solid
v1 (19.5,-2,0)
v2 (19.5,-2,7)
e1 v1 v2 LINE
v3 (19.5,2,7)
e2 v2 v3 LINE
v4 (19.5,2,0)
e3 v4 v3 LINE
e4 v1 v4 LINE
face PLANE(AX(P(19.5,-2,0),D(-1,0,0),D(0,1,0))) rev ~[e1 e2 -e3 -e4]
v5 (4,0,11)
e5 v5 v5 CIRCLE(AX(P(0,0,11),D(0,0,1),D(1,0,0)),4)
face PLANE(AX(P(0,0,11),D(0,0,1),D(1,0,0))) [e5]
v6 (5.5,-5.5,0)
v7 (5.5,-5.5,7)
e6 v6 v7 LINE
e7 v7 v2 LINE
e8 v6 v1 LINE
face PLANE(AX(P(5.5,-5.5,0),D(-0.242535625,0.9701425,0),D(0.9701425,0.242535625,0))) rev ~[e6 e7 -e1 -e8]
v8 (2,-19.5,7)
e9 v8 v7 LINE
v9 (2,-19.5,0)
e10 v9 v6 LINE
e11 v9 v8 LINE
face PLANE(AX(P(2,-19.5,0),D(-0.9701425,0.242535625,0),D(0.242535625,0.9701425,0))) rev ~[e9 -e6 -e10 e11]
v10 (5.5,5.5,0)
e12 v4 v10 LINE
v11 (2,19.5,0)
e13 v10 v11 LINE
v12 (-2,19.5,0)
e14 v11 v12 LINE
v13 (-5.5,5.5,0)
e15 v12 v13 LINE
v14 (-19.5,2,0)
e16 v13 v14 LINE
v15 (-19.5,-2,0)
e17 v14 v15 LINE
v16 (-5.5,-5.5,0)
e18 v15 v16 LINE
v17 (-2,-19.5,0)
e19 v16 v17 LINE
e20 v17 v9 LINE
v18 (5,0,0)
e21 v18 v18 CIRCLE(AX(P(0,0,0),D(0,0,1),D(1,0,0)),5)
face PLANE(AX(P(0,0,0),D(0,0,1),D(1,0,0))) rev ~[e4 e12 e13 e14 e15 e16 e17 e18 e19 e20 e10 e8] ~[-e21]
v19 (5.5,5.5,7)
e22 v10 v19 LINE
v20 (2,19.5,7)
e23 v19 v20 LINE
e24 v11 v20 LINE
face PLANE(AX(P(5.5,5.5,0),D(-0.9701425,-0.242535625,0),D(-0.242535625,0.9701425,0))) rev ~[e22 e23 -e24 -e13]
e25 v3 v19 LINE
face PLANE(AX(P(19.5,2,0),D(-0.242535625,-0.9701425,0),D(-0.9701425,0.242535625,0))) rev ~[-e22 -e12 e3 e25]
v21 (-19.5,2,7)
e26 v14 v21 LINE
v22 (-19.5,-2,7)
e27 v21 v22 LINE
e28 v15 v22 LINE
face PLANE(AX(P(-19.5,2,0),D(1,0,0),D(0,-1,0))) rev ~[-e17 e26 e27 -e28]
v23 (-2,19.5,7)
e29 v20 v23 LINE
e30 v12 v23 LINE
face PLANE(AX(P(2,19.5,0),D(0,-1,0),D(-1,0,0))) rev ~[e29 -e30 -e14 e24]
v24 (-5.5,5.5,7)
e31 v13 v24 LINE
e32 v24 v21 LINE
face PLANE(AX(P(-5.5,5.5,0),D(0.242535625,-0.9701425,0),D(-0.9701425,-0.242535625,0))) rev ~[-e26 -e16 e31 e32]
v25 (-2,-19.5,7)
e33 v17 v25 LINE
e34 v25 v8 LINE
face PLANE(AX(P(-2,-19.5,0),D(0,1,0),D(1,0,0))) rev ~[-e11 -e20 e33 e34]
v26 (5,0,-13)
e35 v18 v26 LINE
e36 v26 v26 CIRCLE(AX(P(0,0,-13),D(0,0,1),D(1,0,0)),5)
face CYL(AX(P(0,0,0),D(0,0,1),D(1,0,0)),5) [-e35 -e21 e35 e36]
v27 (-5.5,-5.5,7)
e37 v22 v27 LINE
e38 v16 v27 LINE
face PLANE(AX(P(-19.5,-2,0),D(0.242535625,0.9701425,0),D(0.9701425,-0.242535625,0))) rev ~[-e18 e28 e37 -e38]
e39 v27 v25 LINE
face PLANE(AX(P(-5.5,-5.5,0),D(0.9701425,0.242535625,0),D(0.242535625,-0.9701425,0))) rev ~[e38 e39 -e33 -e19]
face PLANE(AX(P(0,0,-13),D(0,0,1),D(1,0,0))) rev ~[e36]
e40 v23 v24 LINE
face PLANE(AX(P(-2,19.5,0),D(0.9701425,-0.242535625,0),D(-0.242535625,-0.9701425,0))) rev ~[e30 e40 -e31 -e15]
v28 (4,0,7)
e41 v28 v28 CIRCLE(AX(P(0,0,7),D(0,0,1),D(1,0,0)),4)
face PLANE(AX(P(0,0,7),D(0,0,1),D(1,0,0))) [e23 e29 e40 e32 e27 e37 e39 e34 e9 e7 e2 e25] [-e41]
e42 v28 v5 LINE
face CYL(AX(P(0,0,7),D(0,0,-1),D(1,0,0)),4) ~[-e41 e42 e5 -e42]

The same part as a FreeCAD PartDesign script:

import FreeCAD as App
import Part
import Sketcher

doc = App.newDocument("Part")
body = doc.addObject("PartDesign::Body", "Body")

sketch1 = doc.addObject("Sketcher::SketchObject", "Sketch")
body.addObject(sketch1)
sketch1.AttachmentSupport = (doc.XY_Plane, [""])
sketch1.MapMode = "FlatFace"
sketch1.addGeometry(Part.LineSegment(App.Vector(-5.5, -5.5, 0), App.Vector(-2, -19.5, 0)), False)
sketch1.addGeometry(Part.LineSegment(App.Vector(-2, -19.5, 0), App.Vector(2, -19.5, 0)), False)
sketch1.addGeometry(Part.LineSegment(App.Vector(2, -19.5, 0), App.Vector(5.5, -5.5, 0)), False)
sketch1.addGeometry(Part.LineSegment(App.Vector(5.5, -5.5, 0), App.Vector(19.5, -2, 0)), False)
sketch1.addGeometry(Part.LineSegment(App.Vector(19.5, -2, 0), App.Vector(19.5, 2, 0)), False)
sketch1.addGeometry(Part.LineSegment(App.Vector(19.5, 2, 0), App.Vector(5.5, 5.5, 0)), False)
sketch1.addGeometry(Part.LineSegment(App.Vector(5.5, 5.5, 0), App.Vector(2, 19.5, 0)), False)
sketch1.addGeometry(Part.LineSegment(App.Vector(2, 19.5, 0), App.Vector(-2, 19.5, 0)), False)
sketch1.addGeometry(Part.LineSegment(App.Vector(-2, 19.5, 0), App.Vector(-5.5, 5.5, 0)), False)
sketch1.addGeometry(Part.LineSegment(App.Vector(-5.5, 5.5, 0), App.Vector(-19.5, 2, 0)), False)
sketch1.addGeometry(Part.LineSegment(App.Vector(-19.5, 2, 0), App.Vector(-19.5, -2, 0)), False)
sketch1.addGeometry(Part.LineSegment(App.Vector(-19.5, -2, 0), App.Vector(-5.5, -5.5, 0)), False)
sketch1.addConstraint(Sketcher.Constraint("Coincident", 0, 2, 1, 1))
sketch1.addConstraint(Sketcher.Constraint("Coincident", 1, 2, 2, 1))
sketch1.addConstraint(Sketcher.Constraint("Coincident", 2, 2, 3, 1))
sketch1.addConstraint(Sketcher.Constraint("Coincident", 3, 2, 4, 1))
sketch1.addConstraint(Sketcher.Constraint("Coincident", 4, 2, 5, 1))
sketch1.addConstraint(Sketcher.Constraint("Coincident", 5, 2, 6, 1))
sketch1.addConstraint(Sketcher.Constraint("Coincident", 6, 2, 7, 1))
sketch1.addConstraint(Sketcher.Constraint("Coincident", 7, 2, 8, 1))
sketch1.addConstraint(Sketcher.Constraint("Coincident", 8, 2, 9, 1))
sketch1.addConstraint(Sketcher.Constraint("Coincident", 9, 2, 10, 1))
sketch1.addConstraint(Sketcher.Constraint("Coincident", 10, 2, 11, 1))
sketch1.addConstraint(Sketcher.Constraint("Coincident", 11, 2, 0, 1))
sketch1.addConstraint(Sketcher.Constraint("Horizontal", 1))
sketch1.addConstraint(Sketcher.Constraint("Vertical", 4))
sketch1.addConstraint(Sketcher.Constraint("Horizontal", 7))
sketch1.addConstraint(Sketcher.Constraint("Vertical", 10))
sketch1.addConstraint(Sketcher.Constraint("Symmetric", 0, 2, 6, 2, -1, 1))
sketch1.addConstraint(Sketcher.Constraint("Symmetric", 2, 2, 8, 2, -1, 1))
sketch1.addConstraint(Sketcher.Constraint("Symmetric", 3, 2, 9, 2, -1, 1))
sketch1.addConstraint(Sketcher.Constraint("Symmetric", 5, 2, 11, 2, -1, 1))
sketch1.addConstraint(Sketcher.Constraint("Symmetric", 5, 2, 8, 2, -2))
sketch1.addConstraint(Sketcher.Constraint("Perpendicular", 0, 3))
sketch1.addConstraint(Sketcher.Constraint("Perpendicular", 2, 5))
sketch1.addConstraint(Sketcher.Constraint("Perpendicular", 5, 8))
sketch1.addConstraint(Sketcher.Constraint("Perpendicular", 8, 11))
sketch1.addConstraint(Sketcher.Constraint("Horizontal", 4, 2, 9, 2))
sketch1.addConstraint(Sketcher.Constraint("Equal", 7, 4))
sketch1.addConstraint(Sketcher.Constraint("Equal", 2, 3))
sketch1.addConstraint(Sketcher.Constraint("DistanceX", 1, 1, 1, 2, 4.0))
sketch1.addConstraint(Sketcher.Constraint("DistanceY", 1, 2, 2, 2, 14.0))
sketch1.addConstraint(Sketcher.Constraint("DistanceY", 2, 2, 5, 2, 11.0))
pad1 = doc.addObject("PartDesign::Pad", "Pad")
body.addObject(pad1)
pad1.Profile = sketch1
pad1.Length = 7

sketch2 = doc.addObject("Sketcher::SketchObject", "Sketch001")
body.addObject(sketch2)
sketch2.AttachmentSupport = (doc.XY_Plane, [""])
sketch2.MapMode = "FlatFace"
sketch2.addGeometry(Part.Circle(App.Vector(0, 0, 0), App.Vector(0, 0, 1), 5), False)
sketch2.addConstraint(Sketcher.Constraint("Coincident", 0, 3, -1, 1))
sketch2.addConstraint(Sketcher.Constraint("Diameter", 0, 10.0))
pad2 = doc.addObject("PartDesign::Pad", "Pad001")
body.addObject(pad2)
pad2.Profile = sketch2
pad2.Length = 13
pad2.Reversed = True

sketch3 = doc.addObject("Sketcher::SketchObject", "Sketch002")
body.addObject(sketch3)
sketch3.AttachmentSupport = (doc.XY_Plane, [""])
sketch3.MapMode = "FlatFace"
sketch3.AttachmentOffset = App.Placement(App.Vector(0, 0, 7), App.Rotation())
sketch3.addGeometry(Part.Circle(App.Vector(0, 0, 0), App.Vector(0, 0, 1), 4), False)
sketch3.addConstraint(Sketcher.Constraint("Coincident", 0, 3, -1, 1))
sketch3.addConstraint(Sketcher.Constraint("Diameter", 0, 8.0))
pad3 = doc.addObject("PartDesign::Pad", "Pad002")
body.addObject(pad3)
pad3.Profile = sketch3
pad3.Length = 4

doc.recompute()
